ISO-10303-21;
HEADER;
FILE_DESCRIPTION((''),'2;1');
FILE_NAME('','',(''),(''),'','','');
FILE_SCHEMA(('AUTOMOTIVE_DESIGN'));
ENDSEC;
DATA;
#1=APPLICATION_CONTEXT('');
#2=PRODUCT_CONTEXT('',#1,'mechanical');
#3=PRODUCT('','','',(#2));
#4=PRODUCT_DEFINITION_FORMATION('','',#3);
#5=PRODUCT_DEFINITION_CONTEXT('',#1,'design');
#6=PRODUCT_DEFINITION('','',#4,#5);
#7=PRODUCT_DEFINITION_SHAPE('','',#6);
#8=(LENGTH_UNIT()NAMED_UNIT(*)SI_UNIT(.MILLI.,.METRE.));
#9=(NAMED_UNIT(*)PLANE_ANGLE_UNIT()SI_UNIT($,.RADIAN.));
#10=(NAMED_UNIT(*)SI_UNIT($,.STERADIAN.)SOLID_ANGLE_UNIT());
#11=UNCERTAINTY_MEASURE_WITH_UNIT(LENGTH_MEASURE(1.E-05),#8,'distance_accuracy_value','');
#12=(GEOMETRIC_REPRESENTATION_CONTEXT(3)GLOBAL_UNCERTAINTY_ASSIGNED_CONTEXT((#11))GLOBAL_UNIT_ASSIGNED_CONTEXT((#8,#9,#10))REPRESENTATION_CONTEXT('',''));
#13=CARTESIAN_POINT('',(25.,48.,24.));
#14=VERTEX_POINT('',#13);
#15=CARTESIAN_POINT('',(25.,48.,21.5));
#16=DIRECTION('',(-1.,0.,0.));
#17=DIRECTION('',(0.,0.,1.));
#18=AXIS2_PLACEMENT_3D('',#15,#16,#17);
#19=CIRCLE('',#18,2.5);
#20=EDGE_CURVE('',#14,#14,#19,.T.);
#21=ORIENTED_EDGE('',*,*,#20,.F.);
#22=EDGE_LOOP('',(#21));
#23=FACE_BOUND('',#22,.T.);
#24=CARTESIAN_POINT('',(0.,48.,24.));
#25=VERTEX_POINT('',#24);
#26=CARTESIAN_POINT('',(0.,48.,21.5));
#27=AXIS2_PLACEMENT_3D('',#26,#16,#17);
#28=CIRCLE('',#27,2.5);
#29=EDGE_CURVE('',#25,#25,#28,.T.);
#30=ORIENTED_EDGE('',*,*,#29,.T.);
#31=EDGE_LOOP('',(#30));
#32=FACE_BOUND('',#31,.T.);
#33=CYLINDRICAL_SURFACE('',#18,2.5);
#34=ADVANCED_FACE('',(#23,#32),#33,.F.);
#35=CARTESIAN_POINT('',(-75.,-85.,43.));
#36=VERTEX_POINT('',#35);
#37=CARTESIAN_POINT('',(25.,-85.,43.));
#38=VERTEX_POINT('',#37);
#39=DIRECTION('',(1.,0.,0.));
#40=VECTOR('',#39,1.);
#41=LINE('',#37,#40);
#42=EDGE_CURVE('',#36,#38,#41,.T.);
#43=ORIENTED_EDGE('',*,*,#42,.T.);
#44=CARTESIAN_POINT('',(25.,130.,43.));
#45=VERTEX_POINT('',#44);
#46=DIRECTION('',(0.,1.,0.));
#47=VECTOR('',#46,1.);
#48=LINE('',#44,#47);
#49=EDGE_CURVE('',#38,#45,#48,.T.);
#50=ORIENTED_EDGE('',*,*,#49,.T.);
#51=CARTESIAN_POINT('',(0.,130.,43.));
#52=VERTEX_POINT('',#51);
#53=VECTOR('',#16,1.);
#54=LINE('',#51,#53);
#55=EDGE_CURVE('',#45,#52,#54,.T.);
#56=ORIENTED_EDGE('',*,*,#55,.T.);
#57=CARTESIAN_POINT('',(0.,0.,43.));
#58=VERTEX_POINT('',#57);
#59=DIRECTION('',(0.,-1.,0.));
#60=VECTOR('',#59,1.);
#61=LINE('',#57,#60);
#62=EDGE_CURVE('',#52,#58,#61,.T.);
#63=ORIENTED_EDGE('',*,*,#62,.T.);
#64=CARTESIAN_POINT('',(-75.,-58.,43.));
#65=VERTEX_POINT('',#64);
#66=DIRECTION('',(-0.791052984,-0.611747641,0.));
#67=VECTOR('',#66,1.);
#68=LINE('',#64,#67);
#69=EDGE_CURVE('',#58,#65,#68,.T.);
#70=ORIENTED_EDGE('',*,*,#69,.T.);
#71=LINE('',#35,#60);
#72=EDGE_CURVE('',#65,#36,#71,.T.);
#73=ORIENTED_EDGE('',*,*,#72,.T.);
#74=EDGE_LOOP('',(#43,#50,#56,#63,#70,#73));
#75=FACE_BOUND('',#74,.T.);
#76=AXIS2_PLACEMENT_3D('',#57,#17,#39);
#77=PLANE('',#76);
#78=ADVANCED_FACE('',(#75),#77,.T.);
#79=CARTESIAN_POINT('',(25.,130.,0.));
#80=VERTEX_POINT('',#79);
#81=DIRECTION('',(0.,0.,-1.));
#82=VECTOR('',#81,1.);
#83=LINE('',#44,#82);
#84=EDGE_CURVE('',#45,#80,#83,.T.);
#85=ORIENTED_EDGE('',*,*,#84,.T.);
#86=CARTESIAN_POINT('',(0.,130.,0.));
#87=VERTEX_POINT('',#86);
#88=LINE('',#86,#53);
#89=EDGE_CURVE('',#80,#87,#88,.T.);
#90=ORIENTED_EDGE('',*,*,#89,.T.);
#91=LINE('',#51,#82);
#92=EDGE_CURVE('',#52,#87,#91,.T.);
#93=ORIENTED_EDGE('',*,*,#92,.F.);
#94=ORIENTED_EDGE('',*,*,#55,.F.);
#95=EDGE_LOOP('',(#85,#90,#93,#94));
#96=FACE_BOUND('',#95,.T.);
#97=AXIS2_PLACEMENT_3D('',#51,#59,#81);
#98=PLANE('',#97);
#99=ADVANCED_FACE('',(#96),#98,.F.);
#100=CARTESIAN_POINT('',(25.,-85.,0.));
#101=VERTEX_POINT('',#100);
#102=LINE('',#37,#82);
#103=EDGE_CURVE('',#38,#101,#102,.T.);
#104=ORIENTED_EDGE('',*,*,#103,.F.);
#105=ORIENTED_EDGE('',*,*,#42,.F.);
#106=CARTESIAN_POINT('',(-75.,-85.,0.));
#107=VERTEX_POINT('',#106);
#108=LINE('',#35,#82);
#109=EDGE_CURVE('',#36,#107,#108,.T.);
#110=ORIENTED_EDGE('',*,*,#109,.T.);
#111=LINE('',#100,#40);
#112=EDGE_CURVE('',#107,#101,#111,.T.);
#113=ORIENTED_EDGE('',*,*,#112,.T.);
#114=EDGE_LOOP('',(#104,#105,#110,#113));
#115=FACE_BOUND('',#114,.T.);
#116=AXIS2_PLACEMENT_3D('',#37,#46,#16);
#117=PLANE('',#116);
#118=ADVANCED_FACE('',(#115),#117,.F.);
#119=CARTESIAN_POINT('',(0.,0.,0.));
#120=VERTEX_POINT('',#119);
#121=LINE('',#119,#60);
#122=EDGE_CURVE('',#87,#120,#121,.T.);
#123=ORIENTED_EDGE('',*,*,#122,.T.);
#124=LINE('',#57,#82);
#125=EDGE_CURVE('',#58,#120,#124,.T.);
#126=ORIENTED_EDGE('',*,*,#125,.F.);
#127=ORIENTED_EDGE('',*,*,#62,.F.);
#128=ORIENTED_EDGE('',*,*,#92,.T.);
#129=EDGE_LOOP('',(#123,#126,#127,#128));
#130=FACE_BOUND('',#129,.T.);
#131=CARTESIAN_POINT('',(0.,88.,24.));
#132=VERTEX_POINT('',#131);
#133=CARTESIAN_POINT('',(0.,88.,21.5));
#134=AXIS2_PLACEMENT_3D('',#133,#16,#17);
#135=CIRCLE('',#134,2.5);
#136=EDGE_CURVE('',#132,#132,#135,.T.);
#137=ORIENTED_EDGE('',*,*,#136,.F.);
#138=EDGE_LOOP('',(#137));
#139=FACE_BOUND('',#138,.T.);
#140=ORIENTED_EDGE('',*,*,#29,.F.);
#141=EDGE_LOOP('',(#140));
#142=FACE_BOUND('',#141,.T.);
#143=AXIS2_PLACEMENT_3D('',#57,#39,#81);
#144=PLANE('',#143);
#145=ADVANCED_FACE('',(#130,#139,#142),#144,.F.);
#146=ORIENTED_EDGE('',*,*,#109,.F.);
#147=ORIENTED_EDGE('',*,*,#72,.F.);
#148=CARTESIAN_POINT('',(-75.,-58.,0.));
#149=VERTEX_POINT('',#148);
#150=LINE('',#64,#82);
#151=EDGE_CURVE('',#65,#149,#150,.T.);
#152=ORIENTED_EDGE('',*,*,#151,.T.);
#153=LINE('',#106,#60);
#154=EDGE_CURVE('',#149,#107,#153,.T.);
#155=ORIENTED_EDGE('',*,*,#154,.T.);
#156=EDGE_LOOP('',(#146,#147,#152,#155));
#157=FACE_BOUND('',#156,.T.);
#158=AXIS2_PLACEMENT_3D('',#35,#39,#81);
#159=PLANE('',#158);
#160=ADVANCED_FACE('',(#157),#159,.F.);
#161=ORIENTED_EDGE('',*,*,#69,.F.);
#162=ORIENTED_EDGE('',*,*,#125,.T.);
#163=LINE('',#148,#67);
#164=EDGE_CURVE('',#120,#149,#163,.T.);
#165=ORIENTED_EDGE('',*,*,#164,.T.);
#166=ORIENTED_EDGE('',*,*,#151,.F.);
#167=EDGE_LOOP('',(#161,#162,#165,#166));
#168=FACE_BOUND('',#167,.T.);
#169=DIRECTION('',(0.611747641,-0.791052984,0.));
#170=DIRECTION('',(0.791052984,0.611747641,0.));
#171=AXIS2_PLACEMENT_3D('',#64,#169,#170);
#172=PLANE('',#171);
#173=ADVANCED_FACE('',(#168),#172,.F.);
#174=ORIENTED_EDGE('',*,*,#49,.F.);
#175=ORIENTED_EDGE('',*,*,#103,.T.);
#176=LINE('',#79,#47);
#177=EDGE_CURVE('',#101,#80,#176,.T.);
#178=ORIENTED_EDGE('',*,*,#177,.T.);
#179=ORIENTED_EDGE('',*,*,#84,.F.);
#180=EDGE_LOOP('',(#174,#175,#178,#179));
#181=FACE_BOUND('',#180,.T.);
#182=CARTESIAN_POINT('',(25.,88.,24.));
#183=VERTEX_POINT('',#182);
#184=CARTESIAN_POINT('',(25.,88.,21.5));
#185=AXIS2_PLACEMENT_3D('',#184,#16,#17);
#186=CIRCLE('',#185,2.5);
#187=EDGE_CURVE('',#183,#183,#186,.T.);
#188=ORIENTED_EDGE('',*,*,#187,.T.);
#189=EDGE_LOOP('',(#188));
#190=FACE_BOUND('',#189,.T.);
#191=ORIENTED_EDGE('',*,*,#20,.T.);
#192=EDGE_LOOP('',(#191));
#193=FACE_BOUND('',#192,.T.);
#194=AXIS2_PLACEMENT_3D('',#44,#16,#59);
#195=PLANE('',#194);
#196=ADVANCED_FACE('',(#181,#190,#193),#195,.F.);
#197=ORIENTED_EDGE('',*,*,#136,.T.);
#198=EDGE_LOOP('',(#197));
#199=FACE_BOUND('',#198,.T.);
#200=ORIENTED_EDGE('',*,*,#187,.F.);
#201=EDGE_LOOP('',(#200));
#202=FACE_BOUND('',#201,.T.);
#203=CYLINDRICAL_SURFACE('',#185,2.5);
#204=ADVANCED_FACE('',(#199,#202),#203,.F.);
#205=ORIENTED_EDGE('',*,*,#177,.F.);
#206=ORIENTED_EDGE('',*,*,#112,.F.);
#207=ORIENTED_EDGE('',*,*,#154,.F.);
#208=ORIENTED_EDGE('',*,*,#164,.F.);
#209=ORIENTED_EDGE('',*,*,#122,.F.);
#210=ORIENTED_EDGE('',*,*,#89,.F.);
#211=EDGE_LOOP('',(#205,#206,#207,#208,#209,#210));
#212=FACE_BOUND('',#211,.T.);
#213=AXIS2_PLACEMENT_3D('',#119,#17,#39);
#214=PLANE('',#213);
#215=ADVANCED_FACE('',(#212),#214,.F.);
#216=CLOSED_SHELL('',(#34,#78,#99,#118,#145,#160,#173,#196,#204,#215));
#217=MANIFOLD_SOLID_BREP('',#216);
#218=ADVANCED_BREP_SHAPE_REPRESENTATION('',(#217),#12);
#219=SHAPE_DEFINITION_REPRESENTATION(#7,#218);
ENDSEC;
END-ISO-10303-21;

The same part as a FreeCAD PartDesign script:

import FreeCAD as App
import Part
import Sketcher
Q = App.Units.Quantity

doc = App.newDocument("Part")
body = doc.addObject("PartDesign::Body", "Body")

# Sketch on XY plane
sketch1 = body.newObject("Sketcher::SketchObject", "Sketch")
sketch1.AttachmentSupport = (doc.getObject("XY_Plane"), [""])
sketch1.MapMode = "FlatFace"
sketch1.addGeometry(Part.LineSegment(App.Vector(0, 130, 0), App.Vector(0, 0, 0)), False)
sketch1.addGeometry(Part.LineSegment(App.Vector(0, 0, 0), App.Vector(-75, -58, 0)), False)
sketch1.addGeometry(Part.LineSegment(App.Vector(-75, -58, 0), App.Vector(-75, -85, 0)), False)
sketch1.addGeometry(Part.LineSegment(App.Vector(-75, -85, 0), App.Vector(25, -85, 0)), False)
sketch1.addGeometry(Part.LineSegment(App.Vector(25, -85, 0), App.Vector(25, 130, 0)), False)
sketch1.addGeometry(Part.LineSegment(App.Vector(25, 130, 0), App.Vector(0, 130, 0)), False)
sketch1.addConstraint(Sketcher.Constraint("Coincident", 0, 2, 1, 1))
sketch1.addConstraint(Sketcher.Constraint("Coincident", 1, 2, 2, 1))
sketch1.addConstraint(Sketcher.Constraint("Coincident", 2, 2, 3, 1))
sketch1.addConstraint(Sketcher.Constraint("Coincident", 3, 2, 4, 1))
sketch1.addConstraint(Sketcher.Constraint("Coincident", 4, 2, 5, 1))
sketch1.addConstraint(Sketcher.Constraint("Coincident", 5, 2, 0, 1))
sketch1.addConstraint(Sketcher.Constraint("Vertical", 0))
sketch1.addConstraint(Sketcher.Constraint("Vertical", 2))
sketch1.addConstraint(Sketcher.Constraint("Horizontal", 3))
sketch1.addConstraint(Sketcher.Constraint("Vertical", 4))
sketch1.addConstraint(Sketcher.Constraint("Horizontal", 5))
sketch1.addConstraint(Sketcher.Constraint("Coincident", 0, 2, -1, 1))
sketch1.addConstraint(Sketcher.Constraint("DistanceX", 3, 1, 3, 2, Q("100 mm")))
sketch1.addConstraint(Sketcher.Constraint("DistanceX", 5, 2, 5, 1, Q("25 mm")))
sketch1.addConstraint(Sketcher.Constraint("DistanceY", 0, 2, 0, 1, Q("130 mm")))
sketch1.addConstraint(Sketcher.Constraint("DistanceY", 2, 2, 2, 1, Q("27 mm")))
sketch1.addConstraint(Sketcher.Constraint("DistanceY", 4, 1, 4, 2, Q("215 mm")))
pad1 = body.newObject("PartDesign::Pad", "Pad")
pad1.Profile = sketch1
pad1.Length = 43

# Sketch on YZ plane
sketch2 = body.newObject("Sketcher::SketchObject", "Sketch001")
sketch2.AttachmentSupport = (doc.getObject("YZ_Plane"), [""])
sketch2.MapMode = "FlatFace"
sketch2.addGeometry(Part.Circle(App.Vector(88, 21.5, 0), App.Vector(0, 0, 1), 2.5), False)
sketch2.addGeometry(Part.Circle(App.Vector(48, 21.5, 0), App.Vector(0, 0, 1), 2.5), False)
sketch2.addConstraint(Sketcher.Constraint("Equal", 0, 1))
sketch2.addConstraint(Sketcher.Constraint("Horizontal", 0, 3, 1, 3))
sketch2.addConstraint(Sketcher.Constraint("Diameter", 0, Q("5 mm")))
sketch2.addConstraint(Sketcher.Constraint("DistanceX", -1, 1, 0, 3, Q("88 mm")))
sketch2.addConstraint(Sketcher.Constraint("DistanceX", -1, 1, 1, 3, Q("48 mm")))
sketch2.addConstraint(Sketcher.Constraint("DistanceY", -1, 1, 0, 3, Q("21.5 mm")))
pocket1 = body.newObject("PartDesign::Pocket", "Pocket")
pocket1.Profile = sketch2
pocket1.Length = 25
pocket1.Reversed = True

doc.recompute()
